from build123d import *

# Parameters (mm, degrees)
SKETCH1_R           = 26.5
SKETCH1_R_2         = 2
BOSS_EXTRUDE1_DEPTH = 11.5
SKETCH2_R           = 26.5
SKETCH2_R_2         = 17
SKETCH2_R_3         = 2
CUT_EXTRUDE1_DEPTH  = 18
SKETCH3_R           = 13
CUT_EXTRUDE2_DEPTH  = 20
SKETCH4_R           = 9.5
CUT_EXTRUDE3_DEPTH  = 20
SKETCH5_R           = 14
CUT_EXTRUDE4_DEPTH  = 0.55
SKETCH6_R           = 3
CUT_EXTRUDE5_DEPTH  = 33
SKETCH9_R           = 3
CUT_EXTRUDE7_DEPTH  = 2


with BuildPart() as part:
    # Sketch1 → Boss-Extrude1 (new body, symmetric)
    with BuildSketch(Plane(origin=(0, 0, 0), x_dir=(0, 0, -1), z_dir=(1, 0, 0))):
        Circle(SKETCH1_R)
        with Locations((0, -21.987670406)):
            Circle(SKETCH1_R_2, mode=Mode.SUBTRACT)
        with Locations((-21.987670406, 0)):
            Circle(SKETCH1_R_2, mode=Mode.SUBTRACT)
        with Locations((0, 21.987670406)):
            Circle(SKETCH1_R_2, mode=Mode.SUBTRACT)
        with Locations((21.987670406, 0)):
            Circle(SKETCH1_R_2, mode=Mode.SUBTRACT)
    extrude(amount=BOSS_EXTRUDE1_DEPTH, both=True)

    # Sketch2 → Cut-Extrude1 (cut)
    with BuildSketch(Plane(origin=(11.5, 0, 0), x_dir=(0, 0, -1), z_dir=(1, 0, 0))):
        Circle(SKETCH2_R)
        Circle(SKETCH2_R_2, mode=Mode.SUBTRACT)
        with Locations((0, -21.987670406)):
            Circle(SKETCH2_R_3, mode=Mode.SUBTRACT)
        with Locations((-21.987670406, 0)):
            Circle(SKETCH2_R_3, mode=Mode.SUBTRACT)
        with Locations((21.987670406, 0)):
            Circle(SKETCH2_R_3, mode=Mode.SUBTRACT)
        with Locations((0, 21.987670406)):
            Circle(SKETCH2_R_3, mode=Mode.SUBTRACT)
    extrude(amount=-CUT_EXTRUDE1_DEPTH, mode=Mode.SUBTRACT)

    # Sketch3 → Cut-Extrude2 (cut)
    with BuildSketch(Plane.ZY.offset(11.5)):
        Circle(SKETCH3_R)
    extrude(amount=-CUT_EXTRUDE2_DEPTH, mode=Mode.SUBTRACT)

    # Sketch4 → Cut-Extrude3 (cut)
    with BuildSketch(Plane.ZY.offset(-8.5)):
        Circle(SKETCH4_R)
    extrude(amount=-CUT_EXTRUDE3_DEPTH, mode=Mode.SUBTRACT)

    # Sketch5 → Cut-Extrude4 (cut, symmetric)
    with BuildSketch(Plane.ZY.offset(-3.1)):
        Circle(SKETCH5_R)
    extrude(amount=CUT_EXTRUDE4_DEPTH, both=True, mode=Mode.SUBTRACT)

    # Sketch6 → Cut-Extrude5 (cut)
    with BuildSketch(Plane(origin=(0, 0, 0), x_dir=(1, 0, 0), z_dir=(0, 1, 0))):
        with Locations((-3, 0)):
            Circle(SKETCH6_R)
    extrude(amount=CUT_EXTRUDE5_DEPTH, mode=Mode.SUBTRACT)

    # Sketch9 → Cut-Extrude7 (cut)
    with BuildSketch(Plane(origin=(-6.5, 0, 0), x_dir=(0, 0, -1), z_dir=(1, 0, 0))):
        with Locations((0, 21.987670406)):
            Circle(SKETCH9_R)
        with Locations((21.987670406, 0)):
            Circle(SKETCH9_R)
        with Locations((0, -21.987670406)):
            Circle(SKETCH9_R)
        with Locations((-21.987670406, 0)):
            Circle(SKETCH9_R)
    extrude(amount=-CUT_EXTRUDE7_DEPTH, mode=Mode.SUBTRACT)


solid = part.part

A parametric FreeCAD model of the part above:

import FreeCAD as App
import Part
import Sketcher
Q = App.Units.Quantity

doc = App.newDocument("Part")
body = doc.addObject("PartDesign::Body", "Body")

# Sketch on YZ plane
sketch1 = doc.addObject("Sketcher::SketchObject", "Sketch")
body.addObject(sketch1)
sketch1.AttachmentSupport = (doc.YZ_Plane, [""])
sketch1.MapMode = "FlatFace"
sketch1.addGeometry(Part.Circle(App.Vector(0, 0, 0), App.Vector(0, 0, 1), 26.5), False)
sketch1.addGeometry(Part.Circle(App.Vector(-22, 0, 0), App.Vector(0, 0, 1), 2), False)
sketch1.addGeometry(Part.Circle(App.Vector(0, 22, 0), App.Vector(0, 0, 1), 2), False)
sketch1.addGeometry(Part.Circle(App.Vector(0, -22, 0), App.Vector(0, 0, 1), 2), False)
sketch1.addGeometry(Part.Circle(App.Vector(22, 0, 0), App.Vector(0, 0, 1), 2), False)
sketch1.addConstraint(Sketcher.Constraint("Coincident", 0, 3, -1, 1))
sketch1.addConstraint(Sketcher.Constraint("Equal", 1, 2))
sketch1.addConstraint(Sketcher.Constraint("Equal", 2, 3))
sketch1.addConstraint(Sketcher.Constraint("Equal", 3, 4))
sketch1.addConstraint(Sketcher.Constraint("Symmetric", 2, 3, 3, 3, -1, 1))
sketch1.addConstraint(Sketcher.Constraint("Symmetric", 1, 3, 4, 3, -1, 1))
sketch1.addConstraint(Sketcher.Constraint("PointOnObject", 1, 3, -1))
sketch1.addConstraint(Sketcher.Constraint("PointOnObject", 2, 3, -2))
sketch1.addConstraint(Sketcher.Constraint("Diameter", 0, Q("53 mm")))
sketch1.addConstraint(Sketcher.Constraint("Diameter", 1, Q("4 mm")))
sketch1.addConstraint(Sketcher.Constraint("DistanceX", 1, 3, -1, 1, Q("21.98767 mm")))
sketch1.addConstraint(Sketcher.Constraint("DistanceY", -1, 1, 2, 3, Q("21.98767 mm")))
pad1 = doc.addObject("PartDesign::Pad", "Pad")
body.addObject(pad1)
pad1.Profile = sketch1
pad1.Length = 23
pad1.Midplane = True

# Sketch on YZ plane
sketch2 = doc.addObject("Sketcher::SketchObject", "Sketch001")
body.addObject(sketch2)
sketch2.AttachmentSupport = (doc.YZ_Plane, [""])
sketch2.MapMode = "FlatFace"
sketch2.AttachmentOffset = App.Placement(App.Vector(0, 0, 11.5), App.Rotation())
sketch2.addGeometry(Part.Circle(App.Vector(0, 0, 0), App.Vector(0, 0, 1), 26.5), False)
sketch2.addGeometry(Part.Circle(App.Vector(-22, 0, 0), App.Vector(0, 0, 1), 2), False)
sketch2.addGeometry(Part.Circle(App.Vector(0, 22, 0), App.Vector(0, 0, 1), 2), False)
sketch2.addGeometry(Part.Circle(App.Vector(0, 0, 0), App.Vector(0, 0, 1), 17), False)
sketch2.addGeometry(Part.Circle(App.Vector(0, -22, 0), App.Vector(0, 0, 1), 2), False)
sketch2.addGeometry(Part.Circle(App.Vector(22, 0, 0), App.Vector(0, 0, 1), 2), False)
sketch2.addConstraint(Sketcher.Constraint("Coincident", 0, 3, -1, 1))
sketch2.addConstraint(Sketcher.Constraint("Coincident", 3, 3, -1, 1))
sketch2.addConstraint(Sketcher.Constraint("Equal", 1, 2))
sketch2.addConstraint(Sketcher.Constraint("Equal", 2, 4))
sketch2.addConstraint(Sketcher.Constraint("Equal", 4, 5))
sketch2.addConstraint(Sketcher.Constraint("Symmetric", 2, 3, 4, 3, -1, 1))
sketch2.addConstraint(Sketcher.Constraint("Symmetric", 1, 3, 5, 3, -1, 1))
sketch2.addConstraint(Sketcher.Constraint("PointOnObject", 1, 3, -1))
sketch2.addConstraint(Sketcher.Constraint("PointOnObject", 2, 3, -2))
sketch2.addConstraint(Sketcher.Constraint("Diameter", 0, Q("53 mm")))
sketch2.addConstraint(Sketcher.Constraint("Diameter", 1, Q("4 mm")))
sketch2.addConstraint(Sketcher.Constraint("Diameter", 3, Q("34 mm")))
sketch2.addConstraint(Sketcher.Constraint("DistanceX", 1, 3, -1, 1, Q("21.98767 mm")))
sketch2.addConstraint(Sketcher.Constraint("DistanceY", -1, 1, 2, 3, Q("21.98767 mm")))
pocket1 = doc.addObject("PartDesign::Pocket", "Pocket")
body.addObject(pocket1)
pocket1.Profile = sketch2
pocket1.Length = 18

# Sketch on YZ plane
sketch3 = doc.addObject("Sketcher::SketchObject", "Sketch002")
body.addObject(sketch3)
sketch3.AttachmentSupport = (doc.YZ_Plane, [""])
sketch3.MapMode = "FlatFace"
sketch3.AttachmentOffset = App.Placement(App.Vector(0, 0, -11.5), App.Rotation())
sketch3.addGeometry(Part.Circle(App.Vector(0, 0, 0), App.Vector(0, 0, 1), 13), False)
sketch3.addConstraint(Sketcher.Constraint("Coincident", 0, 3, -1, 1))
sketch3.addConstraint(Sketcher.Constraint("Diameter", 0, Q("26 mm")))
pocket2 = doc.addObject("PartDesign::Pocket", "Pocket001")
body.addObject(pocket2)
pocket2.Profile = sketch3
pocket2.Length = 20
pocket2.Reversed = True

# Sketch on YZ plane
sketch4 = doc.addObject("Sketcher::SketchObject", "Sketch003")
body.addObject(sketch4)
sketch4.AttachmentSupport = (doc.YZ_Plane, [""])
sketch4.MapMode = "FlatFace"
sketch4.AttachmentOffset = App.Placement(App.Vector(0, 0, 8.5), App.Rotation())
sketch4.addGeometry(Part.Circle(App.Vector(0, 0, 0), App.Vector(0, 0, 1), 10), False)
sketch4.addConstraint(Sketcher.Constraint("Coincident", 0, 3, -1, 1))
sketch4.addConstraint(Sketcher.Constraint("Diameter", 0, Q("19 mm")))
pocket3 = doc.addObject("PartDesign::Pocket", "Pocket002")
body.addObject(pocket3)
pocket3.Profile = sketch4
pocket3.Length = 20
pocket3.Reversed = True

# Sketch on YZ plane
sketch5 = doc.addObject("Sketcher::SketchObject", "Sketch004")
body.addObject(sketch5)
sketch5.AttachmentSupport = (doc.YZ_Plane, [""])
sketch5.MapMode = "FlatFace"
sketch5.AttachmentOffset = App.Placement(App.Vector(0, 0, 3.1), App.Rotation())
sketch5.addGeometry(Part.Circle(App.Vector(0, 0, 0), App.Vector(0, 0, 1), 14), False)
sketch5.addConstraint(Sketcher.Constraint("Coincident", 0, 3, -1, 1))
sketch5.addConstraint(Sketcher.Constraint("Diameter", 0, Q("28 mm")))
pocket4 = doc.addObject("PartDesign::Pocket", "Pocket003")
body.addObject(pocket4)
pocket4.Profile = sketch5
pocket4.Length = 1.1
pocket4.Midplane = True

# Sketch on XZ plane
sketch6 = doc.addObject("Sketcher::SketchObject", "Sketch005")
body.addObject(sketch6)
sketch6.AttachmentSupport = (doc.XZ_Plane, [""])
sketch6.MapMode = "FlatFace"
sketch6.addGeometry(Part.Circle(App.Vector(-3, 0, 0), App.Vector(0, 0, 1), 3), False)
sketch6.addConstraint(Sketcher.Constraint("PointOnObject", 0, 3, -1))
sketch6.addConstraint(Sketcher.Constraint("Diameter", 0, Q("6 mm")))
sketch6.addConstraint(Sketcher.Constraint("DistanceX", 0, 3, -1, 1, Q("3 mm")))
pocket5 = doc.addObject("PartDesign::Pocket", "Pocket004")
body.addObject(pocket5)
pocket5.Profile = sketch6
pocket5.Length = 33

# Sketch on YZ plane
sketch7 = doc.addObject("Sketcher::SketchObject", "Sketch006")
body.addObject(sketch7)
sketch7.AttachmentSupport = (doc.YZ_Plane, [""])
sketch7.MapMode = "FlatFace"
sketch7.AttachmentOffset = App.Placement(App.Vector(0, 0, -6.5), App.Rotation())
sketch7.addGeometry(Part.Circle(App.Vector(22, 0, 0), App.Vector(0, 0, 1), 3), False)
sketch7.addGeometry(Part.Circle(App.Vector(0, -22, 0), App.Vector(0, 0, 1), 3), False)
sketch7.addGeometry(Part.Circle(App.Vector(-22, 0, 0), App.Vector(0, 0, 1), 3), False)
sketch7.addGeometry(Part.Circle(App.Vector(0, 22, 0), App.Vector(0, 0, 1), 3), False)
sketch7.addConstraint(Sketcher.Constraint("Equal", 0, 1))
sketch7.addConstraint(Sketcher.Constraint("Equal", 1, 2))
sketch7.addConstraint(Sketcher.Constraint("Equal", 2, 3))
sketch7.addConstraint(Sketcher.Constraint("Symmetric", 0, 3, 2, 3, -1, 1))
sketch7.addConstraint(Sketcher.Constraint("Symmetric", 1, 3, 3, 3, -1, 1))
sketch7.addConstraint(Sketcher.Constraint("PointOnObject", 0, 3, -1))
sketch7.addConstraint(Sketcher.Constraint("PointOnObject", 1, 3, -2))
sketch7.addConstraint(Sketcher.Constraint("Diameter", 0, Q("6 mm")))
sketch7.addConstraint(Sketcher.Constraint("DistanceX", -1, 1, 0, 3, Q("21.98767 mm")))
sketch7.addConstraint(Sketcher.Constraint("DistanceY", 1, 3, -1, 1, Q("21.98767 mm")))
pocket6 = doc.addObject("PartDesign::Pocket", "Pocket005")
body.addObject(pocket6)
pocket6.Profile = sketch7
pocket6.Length = 2

doc.recompute()
